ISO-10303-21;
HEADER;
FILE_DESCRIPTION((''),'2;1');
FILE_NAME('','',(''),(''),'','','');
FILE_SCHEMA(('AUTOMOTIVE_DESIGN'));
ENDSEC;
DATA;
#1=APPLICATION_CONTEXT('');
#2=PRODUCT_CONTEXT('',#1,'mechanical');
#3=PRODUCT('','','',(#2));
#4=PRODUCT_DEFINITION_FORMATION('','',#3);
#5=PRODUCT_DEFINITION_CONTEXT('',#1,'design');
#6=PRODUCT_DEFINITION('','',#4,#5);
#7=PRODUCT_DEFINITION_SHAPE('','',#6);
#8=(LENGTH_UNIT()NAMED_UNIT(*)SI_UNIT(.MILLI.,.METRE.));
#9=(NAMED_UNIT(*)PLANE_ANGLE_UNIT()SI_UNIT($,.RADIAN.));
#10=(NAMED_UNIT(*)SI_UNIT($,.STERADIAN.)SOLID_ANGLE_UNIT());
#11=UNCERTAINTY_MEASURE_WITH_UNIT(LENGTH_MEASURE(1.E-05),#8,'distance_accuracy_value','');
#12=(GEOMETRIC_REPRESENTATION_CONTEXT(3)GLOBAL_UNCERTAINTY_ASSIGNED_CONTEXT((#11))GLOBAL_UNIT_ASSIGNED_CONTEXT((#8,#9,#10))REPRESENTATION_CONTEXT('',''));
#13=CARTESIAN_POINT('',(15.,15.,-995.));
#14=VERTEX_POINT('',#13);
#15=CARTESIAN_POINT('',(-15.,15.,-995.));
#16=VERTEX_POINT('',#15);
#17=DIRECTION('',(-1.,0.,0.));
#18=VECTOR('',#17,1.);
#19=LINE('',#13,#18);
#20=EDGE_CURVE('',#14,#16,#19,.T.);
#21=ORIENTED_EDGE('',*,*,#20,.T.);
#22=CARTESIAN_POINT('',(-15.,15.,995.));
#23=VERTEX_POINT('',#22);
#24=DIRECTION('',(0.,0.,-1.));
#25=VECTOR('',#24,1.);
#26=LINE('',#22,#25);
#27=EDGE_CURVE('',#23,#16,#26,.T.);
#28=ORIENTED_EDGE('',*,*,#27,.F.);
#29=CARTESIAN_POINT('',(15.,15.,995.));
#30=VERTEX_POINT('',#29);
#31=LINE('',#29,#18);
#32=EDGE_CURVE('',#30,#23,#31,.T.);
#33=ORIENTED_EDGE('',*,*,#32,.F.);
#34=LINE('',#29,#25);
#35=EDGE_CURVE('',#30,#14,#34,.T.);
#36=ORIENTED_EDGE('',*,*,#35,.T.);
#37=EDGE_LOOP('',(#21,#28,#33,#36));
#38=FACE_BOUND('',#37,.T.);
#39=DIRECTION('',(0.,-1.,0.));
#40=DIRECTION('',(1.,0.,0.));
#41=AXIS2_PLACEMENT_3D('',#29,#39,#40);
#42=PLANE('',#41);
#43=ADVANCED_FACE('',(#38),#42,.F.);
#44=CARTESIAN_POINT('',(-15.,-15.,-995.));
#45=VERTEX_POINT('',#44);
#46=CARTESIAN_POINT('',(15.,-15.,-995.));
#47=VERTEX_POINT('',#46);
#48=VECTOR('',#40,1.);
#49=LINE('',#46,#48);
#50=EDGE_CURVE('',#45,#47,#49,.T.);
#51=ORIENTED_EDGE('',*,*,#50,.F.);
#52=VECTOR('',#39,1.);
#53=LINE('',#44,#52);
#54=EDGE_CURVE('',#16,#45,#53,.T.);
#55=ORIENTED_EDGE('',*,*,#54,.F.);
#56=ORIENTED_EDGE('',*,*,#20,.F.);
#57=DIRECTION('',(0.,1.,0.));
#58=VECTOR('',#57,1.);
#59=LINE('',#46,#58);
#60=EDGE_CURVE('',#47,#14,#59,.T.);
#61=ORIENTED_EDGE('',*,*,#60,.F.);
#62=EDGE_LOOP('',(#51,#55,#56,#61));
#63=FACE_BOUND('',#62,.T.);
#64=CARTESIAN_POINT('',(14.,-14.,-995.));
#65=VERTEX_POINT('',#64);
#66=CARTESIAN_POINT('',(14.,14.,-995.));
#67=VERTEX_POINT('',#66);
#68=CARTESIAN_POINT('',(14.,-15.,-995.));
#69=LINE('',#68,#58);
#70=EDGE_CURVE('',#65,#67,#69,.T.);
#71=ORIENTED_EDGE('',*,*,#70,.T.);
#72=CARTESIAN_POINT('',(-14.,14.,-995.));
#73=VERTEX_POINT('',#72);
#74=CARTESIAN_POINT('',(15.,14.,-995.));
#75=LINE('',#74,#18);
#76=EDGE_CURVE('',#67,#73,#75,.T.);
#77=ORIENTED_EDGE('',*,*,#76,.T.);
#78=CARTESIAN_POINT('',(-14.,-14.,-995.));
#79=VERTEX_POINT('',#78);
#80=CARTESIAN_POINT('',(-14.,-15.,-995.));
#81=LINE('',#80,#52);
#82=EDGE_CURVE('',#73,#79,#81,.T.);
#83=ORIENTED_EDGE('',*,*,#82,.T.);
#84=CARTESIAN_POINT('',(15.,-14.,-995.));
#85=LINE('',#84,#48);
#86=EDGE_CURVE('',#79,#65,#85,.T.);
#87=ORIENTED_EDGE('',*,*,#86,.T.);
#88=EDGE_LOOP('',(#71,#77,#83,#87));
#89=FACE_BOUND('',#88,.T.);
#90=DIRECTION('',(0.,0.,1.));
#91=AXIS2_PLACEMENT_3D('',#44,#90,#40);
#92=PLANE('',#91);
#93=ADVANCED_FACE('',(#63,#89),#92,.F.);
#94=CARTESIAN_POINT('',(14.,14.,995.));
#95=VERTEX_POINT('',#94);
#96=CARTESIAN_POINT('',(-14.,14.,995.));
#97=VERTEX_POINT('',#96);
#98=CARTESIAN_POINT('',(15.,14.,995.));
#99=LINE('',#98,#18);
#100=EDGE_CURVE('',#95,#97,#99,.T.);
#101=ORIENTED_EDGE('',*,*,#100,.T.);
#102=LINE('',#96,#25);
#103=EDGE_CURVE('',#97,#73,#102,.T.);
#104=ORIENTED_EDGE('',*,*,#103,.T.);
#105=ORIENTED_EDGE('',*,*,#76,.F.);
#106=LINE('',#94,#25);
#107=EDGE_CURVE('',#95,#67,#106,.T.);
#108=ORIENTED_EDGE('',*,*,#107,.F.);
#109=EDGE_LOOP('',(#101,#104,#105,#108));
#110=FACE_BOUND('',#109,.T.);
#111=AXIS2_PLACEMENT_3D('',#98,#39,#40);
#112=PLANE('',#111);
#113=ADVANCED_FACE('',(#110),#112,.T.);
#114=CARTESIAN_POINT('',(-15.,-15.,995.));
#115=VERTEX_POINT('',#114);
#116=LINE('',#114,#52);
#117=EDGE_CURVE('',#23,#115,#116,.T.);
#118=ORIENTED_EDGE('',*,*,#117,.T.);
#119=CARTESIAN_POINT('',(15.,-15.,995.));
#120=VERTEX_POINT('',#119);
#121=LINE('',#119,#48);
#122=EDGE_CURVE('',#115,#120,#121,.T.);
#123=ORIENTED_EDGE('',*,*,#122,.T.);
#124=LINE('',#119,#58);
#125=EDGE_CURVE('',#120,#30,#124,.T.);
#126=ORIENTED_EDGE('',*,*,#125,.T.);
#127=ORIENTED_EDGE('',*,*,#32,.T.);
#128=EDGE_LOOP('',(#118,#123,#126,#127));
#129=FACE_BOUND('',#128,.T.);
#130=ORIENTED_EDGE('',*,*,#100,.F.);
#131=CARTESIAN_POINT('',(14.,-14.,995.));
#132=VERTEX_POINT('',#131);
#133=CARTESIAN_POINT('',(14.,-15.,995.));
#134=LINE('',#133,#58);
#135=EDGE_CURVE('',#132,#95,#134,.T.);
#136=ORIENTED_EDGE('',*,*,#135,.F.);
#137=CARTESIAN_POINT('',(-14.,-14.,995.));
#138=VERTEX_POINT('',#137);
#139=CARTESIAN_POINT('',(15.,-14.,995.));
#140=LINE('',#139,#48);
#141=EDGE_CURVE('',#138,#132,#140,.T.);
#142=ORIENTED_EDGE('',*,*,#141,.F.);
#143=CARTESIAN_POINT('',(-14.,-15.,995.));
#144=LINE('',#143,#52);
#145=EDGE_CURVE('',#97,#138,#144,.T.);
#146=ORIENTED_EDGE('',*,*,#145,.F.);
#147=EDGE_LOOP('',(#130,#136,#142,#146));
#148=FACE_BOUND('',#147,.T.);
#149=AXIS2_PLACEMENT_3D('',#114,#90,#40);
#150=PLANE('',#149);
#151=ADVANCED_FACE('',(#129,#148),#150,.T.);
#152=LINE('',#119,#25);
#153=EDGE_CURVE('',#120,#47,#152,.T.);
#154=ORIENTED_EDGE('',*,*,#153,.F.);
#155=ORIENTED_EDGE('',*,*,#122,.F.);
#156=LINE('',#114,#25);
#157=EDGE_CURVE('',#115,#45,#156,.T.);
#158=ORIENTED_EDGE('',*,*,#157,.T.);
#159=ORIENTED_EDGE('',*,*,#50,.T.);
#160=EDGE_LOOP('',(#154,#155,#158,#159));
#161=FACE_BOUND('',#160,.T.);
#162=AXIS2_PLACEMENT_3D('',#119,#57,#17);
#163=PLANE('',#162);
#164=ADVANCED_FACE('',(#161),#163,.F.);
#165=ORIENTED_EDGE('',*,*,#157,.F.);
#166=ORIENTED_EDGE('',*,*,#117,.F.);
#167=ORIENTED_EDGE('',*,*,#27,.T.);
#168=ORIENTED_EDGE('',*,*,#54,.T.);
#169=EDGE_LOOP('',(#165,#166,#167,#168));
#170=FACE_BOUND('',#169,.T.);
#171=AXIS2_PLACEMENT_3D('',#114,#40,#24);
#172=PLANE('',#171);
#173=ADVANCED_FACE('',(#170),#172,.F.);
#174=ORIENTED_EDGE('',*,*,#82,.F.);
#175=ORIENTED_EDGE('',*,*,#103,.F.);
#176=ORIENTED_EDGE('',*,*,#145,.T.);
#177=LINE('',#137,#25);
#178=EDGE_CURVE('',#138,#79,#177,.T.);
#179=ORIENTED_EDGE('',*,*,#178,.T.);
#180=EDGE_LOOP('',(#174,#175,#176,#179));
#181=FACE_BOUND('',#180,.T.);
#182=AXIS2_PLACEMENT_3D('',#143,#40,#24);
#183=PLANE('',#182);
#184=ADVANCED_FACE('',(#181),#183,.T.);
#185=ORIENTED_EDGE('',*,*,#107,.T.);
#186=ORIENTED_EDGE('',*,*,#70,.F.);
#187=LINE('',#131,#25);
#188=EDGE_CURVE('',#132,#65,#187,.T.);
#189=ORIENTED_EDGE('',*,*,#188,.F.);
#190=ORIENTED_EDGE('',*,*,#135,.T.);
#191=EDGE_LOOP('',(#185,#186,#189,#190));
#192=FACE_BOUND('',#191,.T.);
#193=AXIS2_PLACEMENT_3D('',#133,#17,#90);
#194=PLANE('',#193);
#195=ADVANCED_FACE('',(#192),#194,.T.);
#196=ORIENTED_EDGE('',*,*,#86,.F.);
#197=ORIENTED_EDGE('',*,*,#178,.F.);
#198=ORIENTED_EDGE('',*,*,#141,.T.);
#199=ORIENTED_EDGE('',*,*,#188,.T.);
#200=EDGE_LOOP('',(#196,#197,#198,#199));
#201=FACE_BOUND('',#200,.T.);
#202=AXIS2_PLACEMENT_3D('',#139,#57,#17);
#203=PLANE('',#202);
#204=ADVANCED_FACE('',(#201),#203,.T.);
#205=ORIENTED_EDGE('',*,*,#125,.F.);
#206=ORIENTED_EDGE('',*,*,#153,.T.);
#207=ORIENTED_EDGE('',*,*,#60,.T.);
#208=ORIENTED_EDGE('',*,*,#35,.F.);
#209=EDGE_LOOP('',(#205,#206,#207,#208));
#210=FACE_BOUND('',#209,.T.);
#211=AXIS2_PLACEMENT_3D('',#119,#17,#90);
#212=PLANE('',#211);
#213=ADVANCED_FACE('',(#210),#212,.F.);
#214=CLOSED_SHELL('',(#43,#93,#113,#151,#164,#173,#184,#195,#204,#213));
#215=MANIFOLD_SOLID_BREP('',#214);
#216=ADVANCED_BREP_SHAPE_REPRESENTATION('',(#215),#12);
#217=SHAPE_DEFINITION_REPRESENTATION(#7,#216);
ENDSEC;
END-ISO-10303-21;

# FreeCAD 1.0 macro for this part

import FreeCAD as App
import Part
import Sketcher

V = App.Vector


def add_polygon(sketch, points):
    """Adds a closed chain of lines whose ends are joined by coincident constraints."""
    first, n = sketch.GeometryCount, len(points)
    for a, b in zip(points, points[1:] + points[:1]):
        sketch.addGeometry(Part.LineSegment(App.Vector(*a, 0), App.Vector(*b, 0)), False)
    for i in range(n):
        sketch.addConstraint(Sketcher.Constraint("Coincident", first + i, 2, first + (i + 1) % n, 1))

doc = App.newDocument("Part")
body = doc.addObject("PartDesign::Body", "Body")

sketch1 = body.newObject("Sketcher::SketchObject", "Sketch")
sketch1.AttachmentSupport = (doc.getObject("XY_Plane"), [""])
sketch1.MapMode = "FlatFace"
add_polygon(sketch1, [(-15, 15), (-15, -15), (15, -15), (15, 15)])
add_polygon(sketch1, [(14, -14), (-14, -14), (-14, 14), (14, 14)])
sketch1.addConstraint([
    Sketcher.Constraint("Vertical", 0),
    Sketcher.Constraint("Horizontal", 1),
    Sketcher.Constraint("Vertical", 2),
    Sketcher.Constraint("Horizontal", 3),
    Sketcher.Constraint("Horizontal", 4),
    Sketcher.Constraint("Vertical", 5),
    Sketcher.Constraint("Horizontal", 6),
    Sketcher.Constraint("Vertical", 7),
    Sketcher.Constraint("Symmetric", 0, 2, 2, 2, -1, 1),
    Sketcher.Constraint("Symmetric", 4, 2, 6, 2, -1, 1),
    Sketcher.Constraint("Equal", 3, 0),
    Sketcher.Constraint("Equal", 6, 5),
    Sketcher.Constraint("DistanceX", 1, 1, 1, 2, 30.0),
    Sketcher.Constraint("DistanceX", 4, 2, 4, 1, 28.0),
])
pad1 = body.newObject("PartDesign::Pad", "Pad")
pad1.Profile = sketch1
pad1.Length = 1990
pad1.Midplane = True

doc.recompute()
